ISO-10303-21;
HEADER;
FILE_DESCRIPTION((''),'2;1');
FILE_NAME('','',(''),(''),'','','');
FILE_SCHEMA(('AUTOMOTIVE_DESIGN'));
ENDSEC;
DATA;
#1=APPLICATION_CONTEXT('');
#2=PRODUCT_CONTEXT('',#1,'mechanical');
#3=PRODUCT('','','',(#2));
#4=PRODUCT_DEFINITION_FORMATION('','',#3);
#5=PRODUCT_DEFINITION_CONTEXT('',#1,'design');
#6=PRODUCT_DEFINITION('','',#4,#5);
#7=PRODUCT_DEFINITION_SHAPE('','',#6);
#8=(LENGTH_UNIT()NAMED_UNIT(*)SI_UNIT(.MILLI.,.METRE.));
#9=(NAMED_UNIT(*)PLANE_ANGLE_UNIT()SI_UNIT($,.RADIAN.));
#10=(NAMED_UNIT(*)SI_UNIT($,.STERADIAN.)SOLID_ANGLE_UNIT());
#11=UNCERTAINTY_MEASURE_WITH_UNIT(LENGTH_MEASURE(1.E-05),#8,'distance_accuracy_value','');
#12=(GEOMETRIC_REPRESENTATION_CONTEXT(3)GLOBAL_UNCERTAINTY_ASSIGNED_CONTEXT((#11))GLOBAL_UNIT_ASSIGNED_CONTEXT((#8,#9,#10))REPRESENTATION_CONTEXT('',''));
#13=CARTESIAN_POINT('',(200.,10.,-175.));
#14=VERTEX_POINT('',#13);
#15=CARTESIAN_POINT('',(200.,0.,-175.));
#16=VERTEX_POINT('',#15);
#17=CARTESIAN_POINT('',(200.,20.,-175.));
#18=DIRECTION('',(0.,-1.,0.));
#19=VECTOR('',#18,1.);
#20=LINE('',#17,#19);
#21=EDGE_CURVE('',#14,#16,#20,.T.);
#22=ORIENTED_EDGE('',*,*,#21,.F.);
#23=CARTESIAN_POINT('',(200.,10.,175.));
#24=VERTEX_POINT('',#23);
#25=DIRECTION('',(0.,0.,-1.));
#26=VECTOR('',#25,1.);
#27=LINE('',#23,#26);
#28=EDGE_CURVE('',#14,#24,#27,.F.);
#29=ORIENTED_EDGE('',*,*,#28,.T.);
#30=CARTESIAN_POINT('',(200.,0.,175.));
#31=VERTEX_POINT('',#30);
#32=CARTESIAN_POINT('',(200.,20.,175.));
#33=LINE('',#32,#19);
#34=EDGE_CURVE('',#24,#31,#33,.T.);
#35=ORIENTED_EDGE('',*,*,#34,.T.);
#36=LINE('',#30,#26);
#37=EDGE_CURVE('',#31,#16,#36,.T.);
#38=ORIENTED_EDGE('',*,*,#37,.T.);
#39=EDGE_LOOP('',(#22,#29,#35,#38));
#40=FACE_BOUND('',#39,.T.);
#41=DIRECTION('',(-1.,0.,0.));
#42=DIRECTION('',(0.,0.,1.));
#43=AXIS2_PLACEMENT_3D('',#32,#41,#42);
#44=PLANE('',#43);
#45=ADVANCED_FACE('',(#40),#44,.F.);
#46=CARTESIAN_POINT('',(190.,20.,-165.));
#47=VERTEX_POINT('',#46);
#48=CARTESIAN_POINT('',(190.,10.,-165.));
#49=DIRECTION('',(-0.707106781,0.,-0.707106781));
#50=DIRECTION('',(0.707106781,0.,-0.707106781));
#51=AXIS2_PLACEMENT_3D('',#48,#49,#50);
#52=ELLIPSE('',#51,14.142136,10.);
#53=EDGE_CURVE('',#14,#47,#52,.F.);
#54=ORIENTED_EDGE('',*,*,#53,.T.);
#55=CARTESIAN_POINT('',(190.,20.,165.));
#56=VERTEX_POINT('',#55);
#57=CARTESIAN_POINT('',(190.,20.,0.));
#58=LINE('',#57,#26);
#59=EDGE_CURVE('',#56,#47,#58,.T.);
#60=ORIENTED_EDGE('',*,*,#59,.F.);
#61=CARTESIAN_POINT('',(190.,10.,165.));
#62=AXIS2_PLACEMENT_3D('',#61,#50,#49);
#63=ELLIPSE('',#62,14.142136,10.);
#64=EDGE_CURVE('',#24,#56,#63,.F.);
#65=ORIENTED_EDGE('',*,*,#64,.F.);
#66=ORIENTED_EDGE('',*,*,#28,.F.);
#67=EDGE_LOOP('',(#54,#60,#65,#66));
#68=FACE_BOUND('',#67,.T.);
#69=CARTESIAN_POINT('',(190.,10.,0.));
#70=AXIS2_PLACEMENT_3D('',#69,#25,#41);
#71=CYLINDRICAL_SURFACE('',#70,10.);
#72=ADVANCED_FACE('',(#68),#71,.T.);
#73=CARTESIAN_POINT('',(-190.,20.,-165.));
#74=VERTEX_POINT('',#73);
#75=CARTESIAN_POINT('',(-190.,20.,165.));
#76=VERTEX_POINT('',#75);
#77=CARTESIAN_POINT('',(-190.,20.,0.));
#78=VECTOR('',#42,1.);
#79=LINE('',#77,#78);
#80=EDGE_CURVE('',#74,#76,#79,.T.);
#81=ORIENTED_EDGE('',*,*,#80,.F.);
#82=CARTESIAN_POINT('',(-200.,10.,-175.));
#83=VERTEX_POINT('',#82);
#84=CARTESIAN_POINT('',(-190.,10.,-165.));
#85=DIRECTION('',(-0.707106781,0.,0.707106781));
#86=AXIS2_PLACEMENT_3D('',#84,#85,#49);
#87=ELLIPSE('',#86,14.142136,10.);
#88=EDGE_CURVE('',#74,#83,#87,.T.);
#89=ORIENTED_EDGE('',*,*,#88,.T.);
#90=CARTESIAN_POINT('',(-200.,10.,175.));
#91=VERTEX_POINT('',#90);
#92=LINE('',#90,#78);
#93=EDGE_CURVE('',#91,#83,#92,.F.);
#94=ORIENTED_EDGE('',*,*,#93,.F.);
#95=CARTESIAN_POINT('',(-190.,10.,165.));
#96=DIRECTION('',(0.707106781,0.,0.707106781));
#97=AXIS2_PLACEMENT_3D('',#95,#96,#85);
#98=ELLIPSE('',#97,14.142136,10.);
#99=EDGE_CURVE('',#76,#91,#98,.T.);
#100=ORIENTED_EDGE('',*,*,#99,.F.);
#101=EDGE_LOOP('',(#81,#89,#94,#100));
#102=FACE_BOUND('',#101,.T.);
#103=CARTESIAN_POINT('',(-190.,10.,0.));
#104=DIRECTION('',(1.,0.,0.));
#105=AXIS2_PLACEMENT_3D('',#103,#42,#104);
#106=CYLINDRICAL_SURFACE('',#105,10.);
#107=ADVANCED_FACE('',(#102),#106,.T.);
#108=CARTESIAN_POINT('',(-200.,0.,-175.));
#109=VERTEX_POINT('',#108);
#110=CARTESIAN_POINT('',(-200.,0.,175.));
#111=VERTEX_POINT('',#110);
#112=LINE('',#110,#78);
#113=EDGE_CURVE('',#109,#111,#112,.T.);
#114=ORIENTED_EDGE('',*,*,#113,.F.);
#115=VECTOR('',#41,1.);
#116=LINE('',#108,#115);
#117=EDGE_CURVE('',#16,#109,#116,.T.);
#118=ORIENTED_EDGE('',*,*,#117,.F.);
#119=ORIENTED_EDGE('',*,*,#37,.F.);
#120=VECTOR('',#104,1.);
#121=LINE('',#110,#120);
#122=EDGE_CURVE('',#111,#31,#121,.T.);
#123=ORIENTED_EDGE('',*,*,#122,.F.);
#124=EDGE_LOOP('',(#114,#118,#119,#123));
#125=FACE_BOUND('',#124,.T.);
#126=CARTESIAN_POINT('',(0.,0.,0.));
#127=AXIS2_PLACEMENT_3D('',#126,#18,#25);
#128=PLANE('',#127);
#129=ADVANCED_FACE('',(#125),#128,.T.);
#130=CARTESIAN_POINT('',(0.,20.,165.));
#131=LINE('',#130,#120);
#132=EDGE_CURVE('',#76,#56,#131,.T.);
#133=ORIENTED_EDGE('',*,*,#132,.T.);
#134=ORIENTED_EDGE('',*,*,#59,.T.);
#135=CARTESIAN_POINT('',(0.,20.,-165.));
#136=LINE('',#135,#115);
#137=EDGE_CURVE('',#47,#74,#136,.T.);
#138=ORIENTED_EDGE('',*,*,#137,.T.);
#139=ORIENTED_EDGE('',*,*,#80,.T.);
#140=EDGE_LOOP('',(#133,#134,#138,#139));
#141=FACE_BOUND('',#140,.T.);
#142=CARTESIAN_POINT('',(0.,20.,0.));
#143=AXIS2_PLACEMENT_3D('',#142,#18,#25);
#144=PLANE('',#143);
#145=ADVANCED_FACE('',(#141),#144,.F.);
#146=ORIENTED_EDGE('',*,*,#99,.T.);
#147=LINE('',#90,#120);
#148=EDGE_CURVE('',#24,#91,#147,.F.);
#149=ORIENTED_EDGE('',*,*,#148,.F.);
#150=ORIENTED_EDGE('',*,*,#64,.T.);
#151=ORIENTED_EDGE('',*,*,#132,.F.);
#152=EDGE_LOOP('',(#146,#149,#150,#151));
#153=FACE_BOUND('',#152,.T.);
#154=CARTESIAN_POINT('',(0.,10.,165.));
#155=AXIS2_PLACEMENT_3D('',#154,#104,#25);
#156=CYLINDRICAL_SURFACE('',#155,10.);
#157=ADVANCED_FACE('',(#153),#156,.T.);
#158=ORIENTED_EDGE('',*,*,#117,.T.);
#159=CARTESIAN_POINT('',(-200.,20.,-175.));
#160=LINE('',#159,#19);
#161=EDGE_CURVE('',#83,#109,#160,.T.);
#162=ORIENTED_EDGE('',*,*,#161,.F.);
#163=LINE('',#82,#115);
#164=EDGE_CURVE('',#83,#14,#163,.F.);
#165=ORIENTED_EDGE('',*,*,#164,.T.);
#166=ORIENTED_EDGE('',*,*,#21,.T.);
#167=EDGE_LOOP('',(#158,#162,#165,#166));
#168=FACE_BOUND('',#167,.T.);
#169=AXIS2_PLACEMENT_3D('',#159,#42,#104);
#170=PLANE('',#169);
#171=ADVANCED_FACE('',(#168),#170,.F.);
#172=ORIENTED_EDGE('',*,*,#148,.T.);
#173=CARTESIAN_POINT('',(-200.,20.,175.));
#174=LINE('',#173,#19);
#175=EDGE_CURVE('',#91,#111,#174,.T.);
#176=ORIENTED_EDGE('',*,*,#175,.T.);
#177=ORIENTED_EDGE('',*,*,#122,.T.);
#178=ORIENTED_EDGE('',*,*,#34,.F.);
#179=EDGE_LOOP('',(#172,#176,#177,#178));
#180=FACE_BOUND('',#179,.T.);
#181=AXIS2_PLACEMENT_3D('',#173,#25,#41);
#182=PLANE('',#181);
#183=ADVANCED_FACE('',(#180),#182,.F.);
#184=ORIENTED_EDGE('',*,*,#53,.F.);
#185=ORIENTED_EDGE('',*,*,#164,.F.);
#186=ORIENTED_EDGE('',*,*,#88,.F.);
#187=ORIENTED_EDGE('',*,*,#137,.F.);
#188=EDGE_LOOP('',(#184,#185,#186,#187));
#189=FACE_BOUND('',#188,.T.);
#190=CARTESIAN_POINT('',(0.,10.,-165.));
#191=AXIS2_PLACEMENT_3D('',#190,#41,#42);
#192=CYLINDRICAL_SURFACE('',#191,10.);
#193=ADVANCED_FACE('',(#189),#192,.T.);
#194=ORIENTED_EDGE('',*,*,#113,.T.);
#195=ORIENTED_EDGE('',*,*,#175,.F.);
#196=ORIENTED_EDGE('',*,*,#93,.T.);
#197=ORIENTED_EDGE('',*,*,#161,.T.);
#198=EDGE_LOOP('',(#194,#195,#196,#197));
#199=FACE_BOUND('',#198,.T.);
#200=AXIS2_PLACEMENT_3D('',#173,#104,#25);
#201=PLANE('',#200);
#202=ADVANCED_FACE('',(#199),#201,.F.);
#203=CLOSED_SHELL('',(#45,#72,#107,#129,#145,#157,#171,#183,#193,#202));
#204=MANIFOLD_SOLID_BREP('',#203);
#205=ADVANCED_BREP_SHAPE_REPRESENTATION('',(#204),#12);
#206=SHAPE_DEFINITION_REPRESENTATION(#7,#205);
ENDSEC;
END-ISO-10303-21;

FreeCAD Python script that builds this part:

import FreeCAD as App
import Part
import Sketcher


def edges_at(feature, points):
    """Names of the edges that pass closest to the given points."""
    edges = feature.Shape.Edges
    near = lambda p: min(range(len(edges)), key=lambda i: edges[i].distToShape(Part.Vertex(*p))[0])
    return sorted({f"Edge{near(p) + 1}" for p in points})


def add_polygon(sketch, points):
    """Adds a closed chain of lines whose ends are joined by coincident constraints."""
    first, n = sketch.GeometryCount, len(points)
    for a, b in zip(points, points[1:] + points[:1]):
        sketch.addGeometry(Part.LineSegment(App.Vector(*a, 0), App.Vector(*b, 0)), False)
    for i in range(n):
        sketch.addConstraint(Sketcher.Constraint("Coincident", first + i, 2, first + (i + 1) % n, 1))

doc = App.newDocument("Part")
body = doc.addObject("PartDesign::Body", "Body")

sketch1 = body.newObject("Sketcher::SketchObject", "Sketch")
sketch1.AttachmentSupport = (doc.getObject("XZ_Plane"), [""])
sketch1.MapMode = "FlatFace"
add_polygon(sketch1, [(-200, -175), (-200, 175), (200, 175), (200, -175)])
sketch1.addConstraint([
    Sketcher.Constraint("Vertical", 0),
    Sketcher.Constraint("Horizontal", 1),
    Sketcher.Constraint("Vertical", 2),
    Sketcher.Constraint("Horizontal", 3),
    Sketcher.Constraint("Symmetric", 0, 2, 2, 2, -1, 1),
    Sketcher.Constraint("DistanceX", 1, 1, 1, 2, 400.0),
    Sketcher.Constraint("DistanceY", 0, 1, 0, 2, 350.0),
])
pad1 = body.newObject("PartDesign::Pad", "Pad")
pad1.Profile = sketch1
pad1.Length = 20
pad1.Reversed = True
doc.recompute()

fillet = body.newObject("PartDesign::Fillet", "Fillet")
fillet.Base = (pad1, edges_at(pad1, [
    (-200, 20, 0),
    (0, 20, 175),
    (200, 20, 0),
    (0, 20, -175),
]))
fillet.Radius = 10

doc.recompute()
